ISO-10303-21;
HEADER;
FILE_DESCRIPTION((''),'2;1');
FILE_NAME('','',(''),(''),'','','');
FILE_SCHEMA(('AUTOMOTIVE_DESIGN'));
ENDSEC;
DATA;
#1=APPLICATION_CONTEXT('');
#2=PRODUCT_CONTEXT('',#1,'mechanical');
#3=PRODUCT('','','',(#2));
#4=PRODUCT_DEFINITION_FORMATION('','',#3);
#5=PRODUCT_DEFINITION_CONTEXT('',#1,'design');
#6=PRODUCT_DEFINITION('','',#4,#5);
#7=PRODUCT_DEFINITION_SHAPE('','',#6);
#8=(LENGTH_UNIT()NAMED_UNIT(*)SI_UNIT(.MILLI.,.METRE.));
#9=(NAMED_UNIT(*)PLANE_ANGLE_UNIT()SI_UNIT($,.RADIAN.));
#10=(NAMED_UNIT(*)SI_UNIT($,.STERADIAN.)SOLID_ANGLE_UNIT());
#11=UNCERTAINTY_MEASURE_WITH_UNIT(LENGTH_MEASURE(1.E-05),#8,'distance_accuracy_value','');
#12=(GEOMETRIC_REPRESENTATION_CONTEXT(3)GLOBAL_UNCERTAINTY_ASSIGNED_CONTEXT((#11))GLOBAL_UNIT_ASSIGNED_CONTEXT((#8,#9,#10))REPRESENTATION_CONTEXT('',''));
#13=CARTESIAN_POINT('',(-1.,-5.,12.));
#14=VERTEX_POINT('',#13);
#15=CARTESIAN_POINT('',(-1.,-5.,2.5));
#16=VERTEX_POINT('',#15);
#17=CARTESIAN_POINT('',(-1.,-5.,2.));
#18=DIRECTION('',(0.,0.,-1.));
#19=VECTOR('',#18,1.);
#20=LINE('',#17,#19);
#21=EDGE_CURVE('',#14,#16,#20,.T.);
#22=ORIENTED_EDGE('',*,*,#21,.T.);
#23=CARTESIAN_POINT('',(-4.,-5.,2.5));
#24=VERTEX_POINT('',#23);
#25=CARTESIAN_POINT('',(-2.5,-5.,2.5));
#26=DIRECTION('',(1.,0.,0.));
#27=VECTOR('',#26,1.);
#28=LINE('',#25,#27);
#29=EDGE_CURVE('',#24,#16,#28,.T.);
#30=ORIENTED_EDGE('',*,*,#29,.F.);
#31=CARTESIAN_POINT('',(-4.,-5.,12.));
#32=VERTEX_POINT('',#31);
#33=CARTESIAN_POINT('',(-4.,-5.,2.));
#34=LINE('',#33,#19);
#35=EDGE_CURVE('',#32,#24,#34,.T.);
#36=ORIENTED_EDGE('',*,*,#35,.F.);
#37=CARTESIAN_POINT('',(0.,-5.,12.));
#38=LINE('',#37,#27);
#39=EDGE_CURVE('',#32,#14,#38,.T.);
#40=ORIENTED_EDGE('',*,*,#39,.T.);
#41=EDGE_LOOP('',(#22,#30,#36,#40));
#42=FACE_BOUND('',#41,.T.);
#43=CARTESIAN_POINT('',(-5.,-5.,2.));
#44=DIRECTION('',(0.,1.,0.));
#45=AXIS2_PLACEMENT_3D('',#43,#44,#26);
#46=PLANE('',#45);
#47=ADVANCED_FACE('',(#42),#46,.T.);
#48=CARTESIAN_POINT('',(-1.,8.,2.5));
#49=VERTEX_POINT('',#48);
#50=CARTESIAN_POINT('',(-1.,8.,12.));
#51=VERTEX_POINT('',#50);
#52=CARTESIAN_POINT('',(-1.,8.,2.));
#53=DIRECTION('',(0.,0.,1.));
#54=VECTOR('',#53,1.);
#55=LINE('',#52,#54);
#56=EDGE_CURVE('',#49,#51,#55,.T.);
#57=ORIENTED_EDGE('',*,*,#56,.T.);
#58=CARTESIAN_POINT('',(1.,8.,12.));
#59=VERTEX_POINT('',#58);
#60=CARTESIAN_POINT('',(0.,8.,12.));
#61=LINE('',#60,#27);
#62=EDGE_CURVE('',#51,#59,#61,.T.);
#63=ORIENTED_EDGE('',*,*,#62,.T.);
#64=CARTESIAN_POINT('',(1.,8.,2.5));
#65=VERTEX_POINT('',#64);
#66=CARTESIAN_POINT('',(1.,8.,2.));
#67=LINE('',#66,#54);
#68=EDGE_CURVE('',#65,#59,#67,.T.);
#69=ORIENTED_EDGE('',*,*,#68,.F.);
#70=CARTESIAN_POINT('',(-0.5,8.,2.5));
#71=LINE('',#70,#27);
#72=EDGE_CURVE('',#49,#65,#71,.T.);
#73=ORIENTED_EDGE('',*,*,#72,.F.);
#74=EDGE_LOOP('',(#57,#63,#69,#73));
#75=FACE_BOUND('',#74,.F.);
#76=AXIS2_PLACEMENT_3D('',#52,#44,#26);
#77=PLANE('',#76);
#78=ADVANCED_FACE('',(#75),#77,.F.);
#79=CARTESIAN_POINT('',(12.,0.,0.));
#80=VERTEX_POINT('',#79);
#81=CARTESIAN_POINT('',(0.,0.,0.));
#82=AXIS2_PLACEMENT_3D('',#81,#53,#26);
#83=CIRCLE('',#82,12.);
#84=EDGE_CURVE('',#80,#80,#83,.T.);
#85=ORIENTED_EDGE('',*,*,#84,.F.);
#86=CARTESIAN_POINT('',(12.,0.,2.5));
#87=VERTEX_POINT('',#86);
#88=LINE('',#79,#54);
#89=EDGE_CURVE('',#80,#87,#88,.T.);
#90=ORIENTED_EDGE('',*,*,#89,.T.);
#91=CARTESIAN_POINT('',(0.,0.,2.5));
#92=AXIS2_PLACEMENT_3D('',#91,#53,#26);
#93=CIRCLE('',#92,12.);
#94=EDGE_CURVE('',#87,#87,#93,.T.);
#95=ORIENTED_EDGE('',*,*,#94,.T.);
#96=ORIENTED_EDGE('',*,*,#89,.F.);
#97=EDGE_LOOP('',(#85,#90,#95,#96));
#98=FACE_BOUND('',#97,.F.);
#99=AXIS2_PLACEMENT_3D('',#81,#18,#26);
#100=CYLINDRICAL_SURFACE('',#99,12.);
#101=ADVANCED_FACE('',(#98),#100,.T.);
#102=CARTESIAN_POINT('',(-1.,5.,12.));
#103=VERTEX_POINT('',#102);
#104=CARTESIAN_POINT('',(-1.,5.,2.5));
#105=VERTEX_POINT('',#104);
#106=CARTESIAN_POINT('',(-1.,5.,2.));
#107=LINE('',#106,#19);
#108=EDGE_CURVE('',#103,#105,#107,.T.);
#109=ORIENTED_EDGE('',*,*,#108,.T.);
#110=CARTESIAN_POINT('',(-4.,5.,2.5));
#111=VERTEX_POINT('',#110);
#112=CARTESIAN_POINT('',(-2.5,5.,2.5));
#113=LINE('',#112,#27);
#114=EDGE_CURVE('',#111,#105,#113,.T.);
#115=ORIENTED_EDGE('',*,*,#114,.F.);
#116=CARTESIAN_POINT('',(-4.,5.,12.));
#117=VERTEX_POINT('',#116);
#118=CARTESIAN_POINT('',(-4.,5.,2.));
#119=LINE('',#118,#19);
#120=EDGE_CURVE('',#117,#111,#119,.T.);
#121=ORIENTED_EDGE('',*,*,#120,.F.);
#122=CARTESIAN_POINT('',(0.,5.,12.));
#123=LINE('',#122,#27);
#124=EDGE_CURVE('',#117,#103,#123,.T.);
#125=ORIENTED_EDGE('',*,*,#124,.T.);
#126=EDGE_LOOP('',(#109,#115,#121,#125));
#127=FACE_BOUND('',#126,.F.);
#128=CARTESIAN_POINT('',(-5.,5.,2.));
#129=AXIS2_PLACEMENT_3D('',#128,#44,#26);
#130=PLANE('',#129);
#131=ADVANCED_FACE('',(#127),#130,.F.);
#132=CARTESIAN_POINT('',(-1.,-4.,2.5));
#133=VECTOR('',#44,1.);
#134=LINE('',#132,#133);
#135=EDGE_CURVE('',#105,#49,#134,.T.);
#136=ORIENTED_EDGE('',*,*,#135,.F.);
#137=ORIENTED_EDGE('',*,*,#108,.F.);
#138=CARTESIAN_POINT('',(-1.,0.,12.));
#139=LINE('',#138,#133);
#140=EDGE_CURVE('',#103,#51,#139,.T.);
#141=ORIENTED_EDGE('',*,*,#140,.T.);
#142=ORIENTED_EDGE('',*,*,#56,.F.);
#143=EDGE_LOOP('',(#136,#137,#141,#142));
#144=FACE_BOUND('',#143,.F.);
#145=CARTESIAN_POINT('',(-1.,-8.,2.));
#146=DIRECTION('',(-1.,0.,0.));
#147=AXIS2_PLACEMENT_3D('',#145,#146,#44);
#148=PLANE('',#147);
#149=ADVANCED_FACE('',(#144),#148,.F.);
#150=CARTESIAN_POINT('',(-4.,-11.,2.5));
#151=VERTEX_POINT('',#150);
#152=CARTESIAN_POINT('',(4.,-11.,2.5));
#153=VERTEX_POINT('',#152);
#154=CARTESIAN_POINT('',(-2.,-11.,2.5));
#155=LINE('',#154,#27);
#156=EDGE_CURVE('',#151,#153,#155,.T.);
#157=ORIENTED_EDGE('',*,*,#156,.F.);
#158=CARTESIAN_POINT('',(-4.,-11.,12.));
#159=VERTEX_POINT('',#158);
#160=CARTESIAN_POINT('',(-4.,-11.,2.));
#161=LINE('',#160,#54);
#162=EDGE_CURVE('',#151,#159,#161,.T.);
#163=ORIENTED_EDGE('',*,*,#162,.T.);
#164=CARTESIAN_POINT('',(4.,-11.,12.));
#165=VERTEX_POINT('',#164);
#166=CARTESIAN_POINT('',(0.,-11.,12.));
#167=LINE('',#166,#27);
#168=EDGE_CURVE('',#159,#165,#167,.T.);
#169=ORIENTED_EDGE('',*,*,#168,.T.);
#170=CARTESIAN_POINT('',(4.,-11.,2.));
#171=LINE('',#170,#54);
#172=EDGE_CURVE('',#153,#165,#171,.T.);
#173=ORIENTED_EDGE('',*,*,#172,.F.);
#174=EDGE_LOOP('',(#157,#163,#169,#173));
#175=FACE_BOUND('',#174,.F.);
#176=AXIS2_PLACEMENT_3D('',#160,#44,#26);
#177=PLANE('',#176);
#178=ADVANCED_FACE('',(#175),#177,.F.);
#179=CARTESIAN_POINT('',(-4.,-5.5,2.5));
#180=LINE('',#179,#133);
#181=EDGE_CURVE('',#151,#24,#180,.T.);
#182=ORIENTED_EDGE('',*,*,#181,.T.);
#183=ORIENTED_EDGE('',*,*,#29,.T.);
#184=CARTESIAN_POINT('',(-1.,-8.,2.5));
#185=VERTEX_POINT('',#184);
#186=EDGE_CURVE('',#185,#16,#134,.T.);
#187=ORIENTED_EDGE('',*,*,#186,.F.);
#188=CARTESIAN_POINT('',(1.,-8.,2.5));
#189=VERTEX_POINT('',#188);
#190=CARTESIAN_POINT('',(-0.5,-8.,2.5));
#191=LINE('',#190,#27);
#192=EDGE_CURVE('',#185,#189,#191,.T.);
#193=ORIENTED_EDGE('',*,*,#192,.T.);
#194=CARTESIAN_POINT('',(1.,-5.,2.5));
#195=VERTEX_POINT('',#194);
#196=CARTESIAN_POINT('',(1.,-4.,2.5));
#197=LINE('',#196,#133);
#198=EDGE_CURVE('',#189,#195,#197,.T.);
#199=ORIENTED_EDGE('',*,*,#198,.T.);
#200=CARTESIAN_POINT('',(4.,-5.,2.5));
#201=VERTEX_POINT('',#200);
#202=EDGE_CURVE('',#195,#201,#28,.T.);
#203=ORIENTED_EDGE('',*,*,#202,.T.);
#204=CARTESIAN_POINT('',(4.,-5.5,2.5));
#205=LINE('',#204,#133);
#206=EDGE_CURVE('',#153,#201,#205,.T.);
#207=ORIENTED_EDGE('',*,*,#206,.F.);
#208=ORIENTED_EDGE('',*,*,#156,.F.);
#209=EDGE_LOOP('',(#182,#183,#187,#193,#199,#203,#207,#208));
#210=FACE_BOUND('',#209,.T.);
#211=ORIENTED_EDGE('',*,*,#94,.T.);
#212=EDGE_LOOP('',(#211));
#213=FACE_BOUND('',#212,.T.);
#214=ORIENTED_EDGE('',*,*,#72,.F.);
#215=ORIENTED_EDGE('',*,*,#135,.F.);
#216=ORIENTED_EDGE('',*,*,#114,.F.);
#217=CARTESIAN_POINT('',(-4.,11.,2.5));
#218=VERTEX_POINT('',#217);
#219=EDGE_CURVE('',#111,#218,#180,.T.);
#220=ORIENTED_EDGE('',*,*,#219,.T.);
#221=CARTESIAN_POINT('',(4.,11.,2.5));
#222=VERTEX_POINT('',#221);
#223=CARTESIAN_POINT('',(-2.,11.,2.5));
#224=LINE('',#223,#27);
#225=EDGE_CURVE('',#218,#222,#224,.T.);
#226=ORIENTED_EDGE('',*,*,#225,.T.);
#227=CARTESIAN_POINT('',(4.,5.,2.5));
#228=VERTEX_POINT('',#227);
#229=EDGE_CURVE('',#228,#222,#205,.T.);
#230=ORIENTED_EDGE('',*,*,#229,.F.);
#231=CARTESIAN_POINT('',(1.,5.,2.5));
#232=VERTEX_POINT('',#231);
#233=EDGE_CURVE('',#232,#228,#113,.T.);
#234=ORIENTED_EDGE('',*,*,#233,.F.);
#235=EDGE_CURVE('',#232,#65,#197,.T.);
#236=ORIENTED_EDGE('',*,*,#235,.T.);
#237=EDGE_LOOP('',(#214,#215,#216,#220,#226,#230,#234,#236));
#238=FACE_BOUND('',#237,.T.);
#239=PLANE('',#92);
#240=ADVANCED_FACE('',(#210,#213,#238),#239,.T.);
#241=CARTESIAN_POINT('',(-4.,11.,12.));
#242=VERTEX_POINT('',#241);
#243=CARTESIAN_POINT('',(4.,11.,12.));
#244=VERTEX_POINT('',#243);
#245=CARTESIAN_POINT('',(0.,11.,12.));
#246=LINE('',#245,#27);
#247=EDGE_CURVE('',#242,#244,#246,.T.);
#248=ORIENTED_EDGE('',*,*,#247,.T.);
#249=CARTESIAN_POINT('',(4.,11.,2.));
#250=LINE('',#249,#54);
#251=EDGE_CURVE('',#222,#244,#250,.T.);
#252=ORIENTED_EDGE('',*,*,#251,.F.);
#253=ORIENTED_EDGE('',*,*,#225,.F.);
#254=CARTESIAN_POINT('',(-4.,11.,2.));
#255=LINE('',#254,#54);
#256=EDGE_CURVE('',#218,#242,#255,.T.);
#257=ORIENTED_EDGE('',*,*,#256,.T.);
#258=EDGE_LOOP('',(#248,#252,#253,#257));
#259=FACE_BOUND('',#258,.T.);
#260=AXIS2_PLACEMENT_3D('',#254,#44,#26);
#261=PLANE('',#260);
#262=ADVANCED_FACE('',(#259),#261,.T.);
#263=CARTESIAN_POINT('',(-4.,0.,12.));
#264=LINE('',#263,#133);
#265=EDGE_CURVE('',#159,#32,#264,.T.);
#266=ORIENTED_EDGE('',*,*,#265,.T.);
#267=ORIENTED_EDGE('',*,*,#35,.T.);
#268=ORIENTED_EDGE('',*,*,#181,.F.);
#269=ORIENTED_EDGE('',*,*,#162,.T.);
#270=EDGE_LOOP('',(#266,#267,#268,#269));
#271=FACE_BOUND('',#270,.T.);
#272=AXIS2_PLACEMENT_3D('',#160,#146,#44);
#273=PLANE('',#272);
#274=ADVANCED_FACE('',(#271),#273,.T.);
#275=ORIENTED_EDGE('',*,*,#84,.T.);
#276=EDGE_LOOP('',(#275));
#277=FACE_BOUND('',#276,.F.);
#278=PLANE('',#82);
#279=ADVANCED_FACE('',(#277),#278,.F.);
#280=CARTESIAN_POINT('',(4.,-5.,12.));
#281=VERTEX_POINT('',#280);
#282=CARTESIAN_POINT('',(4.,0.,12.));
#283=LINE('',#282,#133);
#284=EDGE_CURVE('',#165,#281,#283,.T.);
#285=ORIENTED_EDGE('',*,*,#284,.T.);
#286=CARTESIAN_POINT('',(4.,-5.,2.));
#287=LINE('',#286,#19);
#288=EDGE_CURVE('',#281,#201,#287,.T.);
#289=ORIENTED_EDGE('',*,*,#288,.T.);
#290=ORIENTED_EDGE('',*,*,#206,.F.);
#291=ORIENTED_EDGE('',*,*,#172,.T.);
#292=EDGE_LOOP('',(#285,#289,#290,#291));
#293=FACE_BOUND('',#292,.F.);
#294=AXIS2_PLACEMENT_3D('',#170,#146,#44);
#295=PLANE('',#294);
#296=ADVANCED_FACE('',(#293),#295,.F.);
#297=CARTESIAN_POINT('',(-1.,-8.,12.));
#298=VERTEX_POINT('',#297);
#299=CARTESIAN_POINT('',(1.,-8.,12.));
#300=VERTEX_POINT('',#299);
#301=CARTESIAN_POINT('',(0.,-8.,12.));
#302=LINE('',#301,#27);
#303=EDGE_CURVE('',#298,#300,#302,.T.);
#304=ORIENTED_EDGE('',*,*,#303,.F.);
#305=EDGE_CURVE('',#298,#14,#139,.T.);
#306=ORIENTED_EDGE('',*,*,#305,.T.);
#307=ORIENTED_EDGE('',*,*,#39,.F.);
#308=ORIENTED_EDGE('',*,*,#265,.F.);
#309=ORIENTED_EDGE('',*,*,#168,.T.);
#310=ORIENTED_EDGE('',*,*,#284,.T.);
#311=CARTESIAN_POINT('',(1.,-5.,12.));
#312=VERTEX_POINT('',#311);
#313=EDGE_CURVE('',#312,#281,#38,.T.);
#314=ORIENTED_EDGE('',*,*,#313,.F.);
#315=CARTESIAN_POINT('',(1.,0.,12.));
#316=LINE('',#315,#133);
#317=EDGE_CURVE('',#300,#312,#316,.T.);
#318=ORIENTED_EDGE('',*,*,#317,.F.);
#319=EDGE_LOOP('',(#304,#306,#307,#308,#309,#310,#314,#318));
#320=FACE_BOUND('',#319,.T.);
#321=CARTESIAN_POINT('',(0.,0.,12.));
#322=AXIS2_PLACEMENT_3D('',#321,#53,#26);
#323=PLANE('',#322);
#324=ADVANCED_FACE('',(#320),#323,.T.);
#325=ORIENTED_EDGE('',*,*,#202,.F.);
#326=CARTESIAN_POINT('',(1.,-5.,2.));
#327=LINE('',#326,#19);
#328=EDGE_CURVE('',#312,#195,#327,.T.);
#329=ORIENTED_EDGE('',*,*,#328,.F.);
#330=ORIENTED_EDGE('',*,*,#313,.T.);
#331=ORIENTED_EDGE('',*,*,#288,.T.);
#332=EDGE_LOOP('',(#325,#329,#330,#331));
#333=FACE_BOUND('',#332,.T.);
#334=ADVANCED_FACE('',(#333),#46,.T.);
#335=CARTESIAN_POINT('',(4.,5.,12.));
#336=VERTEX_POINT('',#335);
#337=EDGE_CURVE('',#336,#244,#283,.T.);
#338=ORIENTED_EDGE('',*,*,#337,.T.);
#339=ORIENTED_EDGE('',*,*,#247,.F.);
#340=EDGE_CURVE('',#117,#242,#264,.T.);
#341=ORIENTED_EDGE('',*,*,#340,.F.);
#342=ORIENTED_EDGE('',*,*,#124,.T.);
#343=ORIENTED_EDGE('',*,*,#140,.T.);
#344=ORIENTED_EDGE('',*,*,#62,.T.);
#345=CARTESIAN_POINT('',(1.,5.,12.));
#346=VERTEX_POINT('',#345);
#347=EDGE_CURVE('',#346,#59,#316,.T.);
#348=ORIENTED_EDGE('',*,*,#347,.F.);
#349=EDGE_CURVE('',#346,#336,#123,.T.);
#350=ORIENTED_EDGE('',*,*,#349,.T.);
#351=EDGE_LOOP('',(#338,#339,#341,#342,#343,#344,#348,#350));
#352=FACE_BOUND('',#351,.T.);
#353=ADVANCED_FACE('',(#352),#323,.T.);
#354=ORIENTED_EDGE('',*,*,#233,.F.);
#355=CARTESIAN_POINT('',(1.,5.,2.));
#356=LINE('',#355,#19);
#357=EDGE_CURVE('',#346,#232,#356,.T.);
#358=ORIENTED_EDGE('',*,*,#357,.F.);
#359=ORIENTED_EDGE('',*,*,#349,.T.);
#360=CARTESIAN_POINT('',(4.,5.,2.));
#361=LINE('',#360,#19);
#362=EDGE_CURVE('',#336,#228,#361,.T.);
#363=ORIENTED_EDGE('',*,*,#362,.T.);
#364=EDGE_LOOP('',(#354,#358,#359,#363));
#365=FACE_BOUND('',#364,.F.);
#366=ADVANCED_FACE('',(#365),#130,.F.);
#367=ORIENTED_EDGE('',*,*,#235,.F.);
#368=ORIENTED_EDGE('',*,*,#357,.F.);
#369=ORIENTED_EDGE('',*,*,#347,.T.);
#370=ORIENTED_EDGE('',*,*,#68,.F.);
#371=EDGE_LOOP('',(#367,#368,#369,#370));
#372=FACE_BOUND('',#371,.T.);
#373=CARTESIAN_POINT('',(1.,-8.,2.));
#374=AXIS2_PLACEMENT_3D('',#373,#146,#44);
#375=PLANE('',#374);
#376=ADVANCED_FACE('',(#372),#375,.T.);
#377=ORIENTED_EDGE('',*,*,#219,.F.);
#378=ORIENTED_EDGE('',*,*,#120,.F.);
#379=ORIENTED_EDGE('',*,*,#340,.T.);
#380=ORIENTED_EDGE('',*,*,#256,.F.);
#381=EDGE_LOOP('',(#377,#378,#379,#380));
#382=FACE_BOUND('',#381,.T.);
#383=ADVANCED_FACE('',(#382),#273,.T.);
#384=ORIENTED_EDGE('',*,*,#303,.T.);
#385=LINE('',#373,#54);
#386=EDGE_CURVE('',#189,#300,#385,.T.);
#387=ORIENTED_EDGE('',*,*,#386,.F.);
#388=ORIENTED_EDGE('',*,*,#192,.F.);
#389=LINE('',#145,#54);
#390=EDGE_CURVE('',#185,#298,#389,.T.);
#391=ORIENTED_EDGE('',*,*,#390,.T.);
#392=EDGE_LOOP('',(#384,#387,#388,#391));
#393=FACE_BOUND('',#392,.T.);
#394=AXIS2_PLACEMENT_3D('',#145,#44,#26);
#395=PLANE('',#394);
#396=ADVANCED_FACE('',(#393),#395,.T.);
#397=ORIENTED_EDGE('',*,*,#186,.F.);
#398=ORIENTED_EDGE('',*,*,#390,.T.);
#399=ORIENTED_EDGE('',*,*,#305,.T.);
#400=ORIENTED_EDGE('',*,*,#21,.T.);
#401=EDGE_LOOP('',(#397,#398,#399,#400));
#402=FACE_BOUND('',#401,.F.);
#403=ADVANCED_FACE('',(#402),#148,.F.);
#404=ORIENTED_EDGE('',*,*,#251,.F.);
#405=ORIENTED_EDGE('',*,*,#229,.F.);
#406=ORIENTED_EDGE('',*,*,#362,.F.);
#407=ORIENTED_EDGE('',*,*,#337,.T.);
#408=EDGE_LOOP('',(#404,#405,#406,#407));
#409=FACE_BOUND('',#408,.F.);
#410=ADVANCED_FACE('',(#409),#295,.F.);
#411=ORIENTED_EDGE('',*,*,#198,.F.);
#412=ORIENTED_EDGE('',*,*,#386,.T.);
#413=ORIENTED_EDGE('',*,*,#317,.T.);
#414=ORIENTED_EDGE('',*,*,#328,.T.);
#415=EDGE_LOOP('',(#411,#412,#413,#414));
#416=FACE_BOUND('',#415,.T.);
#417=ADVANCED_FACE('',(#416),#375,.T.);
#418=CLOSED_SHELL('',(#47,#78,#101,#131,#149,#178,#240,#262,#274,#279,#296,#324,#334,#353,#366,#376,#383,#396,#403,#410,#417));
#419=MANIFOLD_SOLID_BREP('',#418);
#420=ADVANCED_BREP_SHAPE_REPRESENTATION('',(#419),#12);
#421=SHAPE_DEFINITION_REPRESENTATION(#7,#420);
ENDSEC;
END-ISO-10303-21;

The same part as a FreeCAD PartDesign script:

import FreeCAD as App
import Part
import Sketcher
from FreeCAD import Vector


def add_polygon(sketch, points):
    """Adds a closed chain of lines whose ends are joined by coincident constraints."""
    first, n = sketch.GeometryCount, len(points)
    for a, b in zip(points, points[1:] + points[:1]):
        sketch.addGeometry(Part.LineSegment(App.Vector(*a, 0), App.Vector(*b, 0)), False)
    for i in range(n):
        sketch.addConstraint(Sketcher.Constraint("Coincident", first + i, 2, first + (i + 1) % n, 1))

doc = App.newDocument("Part")
body = doc.addObject("PartDesign::Body", "Body")

# Sketch on XY plane
sketch1 = doc.addObject("Sketcher::SketchObject", "Sketch")
body.addObject(sketch1)
sketch1.AttachmentSupport = (doc.XY_Plane, [""])
sketch1.MapMode = "FlatFace"
sketch1.addGeometry(Part.Circle(Vector(0, 0, 0), Vector(0, 0, 1), 12), False)
sketch1.addConstraint([
    Sketcher.Constraint("Coincident", 0, 3, -1, 1),
    Sketcher.Constraint("Diameter", 0, 24.0),
])
pad1 = doc.addObject("PartDesign::Pad", "Pad")
body.addObject(pad1)
pad1.Profile = sketch1
pad1.Length = 2.5
body2 = doc.addObject("PartDesign::Body", "Body001")

# Sketch on XY plane
sketch2 = doc.addObject("Sketcher::SketchObject", "Sketch001")
body2.addObject(sketch2)
sketch2.AttachmentSupport = (doc.getObject("XY_Plane001"), [""])
sketch2.MapMode = "FlatFace"
sketch2.AttachmentOffset = App.Placement(Vector(0, 0, 2), App.Rotation())
add_polygon(sketch2, [(-5, 5), (-5, -5), (5, -5), (5, 5)])  # lines 0-3
sketch2.addConstraint([
    Sketcher.Constraint("Vertical", 0),
    Sketcher.Constraint("Horizontal", 1),
    Sketcher.Constraint("Vertical", 2),
    Sketcher.Constraint("Horizontal", 3),
    Sketcher.Constraint("Symmetric", 0, 2, 2, 2, -1, 1),
    Sketcher.Constraint("Equal", 3, 0),
    Sketcher.Constraint("DistanceX", 1, 1, 1, 2, 10.0),
])
pad2 = doc.addObject("PartDesign::Pad", "Pad001")
body2.addObject(pad2)
pad2.Profile = sketch2
pad2.Length = 10
body3 = doc.addObject("PartDesign::Body", "Body002")

# Sketch on XY plane
sketch3 = doc.addObject("Sketcher::SketchObject", "Sketch002")
body3.addObject(sketch3)
sketch3.AttachmentSupport = (doc.getObject("XY_Plane002"), [""])
sketch3.MapMode = "FlatFace"
sketch3.AttachmentOffset = App.Placement(Vector(0, 0, 2), App.Rotation())
add_polygon(sketch3, [(-1, 8), (-1, -8), (1, -8), (1, 8)])  # lines 0-3
sketch3.addConstraint([
    Sketcher.Constraint("Vertical", 0),
    Sketcher.Constraint("Horizontal", 1),
    Sketcher.Constraint("Vertical", 2),
    Sketcher.Constraint("Horizontal", 3),
    Sketcher.Constraint("Symmetric", 0, 2, 2, 2, -1, 1),
    Sketcher.Constraint("DistanceX", 1, 1, 1, 2, 2.0),
    Sketcher.Constraint("DistanceY", 0, 2, 0, 1, 16.0),
])
pad3 = doc.addObject("PartDesign::Pad", "Pad002")
body3.addObject(pad3)
pad3.Profile = sketch3
pad3.Length = 10
doc.recompute()

boolean = doc.addObject("PartDesign::Boolean", "Boolean")
body3.addObject(boolean)
boolean.Type = "Fuse"
boolean.addObjects([body2])
body4 = doc.addObject("PartDesign::Body", "Body003")
body4.AllowCompound = True

# Sketch on XY plane
sketch4 = doc.addObject("Sketcher::SketchObject", "Sketch003")
body4.addObject(sketch4)
sketch4.AttachmentSupport = (doc.getObject("XY_Plane003"), [""])
sketch4.MapMode = "FlatFace"
sketch4.AttachmentOffset = App.Placement(Vector(0, 0, 2), App.Rotation())
add_polygon(sketch4, [(-4, 11), (-4, -11), (4, -11), (4, 11)])  # lines 0-3
sketch4.addConstraint([
    Sketcher.Constraint("Vertical", 0),
    Sketcher.Constraint("Horizontal", 1),
    Sketcher.Constraint("Vertical", 2),
    Sketcher.Constraint("Horizontal", 3),
    Sketcher.Constraint("Symmetric", 0, 2, 2, 2, -1, 1),
    Sketcher.Constraint("DistanceX", 1, 1, 1, 2, 8.0),
    Sketcher.Constraint("DistanceY", 0, 2, 0, 1, 22.0),
])
pad4 = doc.addObject("PartDesign::Pad", "Pad003")
body4.addObject(pad4)
pad4.Profile = sketch4
pad4.Length = 10
doc.recompute()

boolean2 = doc.addObject("PartDesign::Boolean", "Boolean001")
body4.addObject(boolean2)
boolean2.Type = "Cut"
boolean2.addObjects([body3])
doc.recompute()

boolean3 = doc.addObject("PartDesign::Boolean", "Boolean002")
body4.addObject(boolean3)
boolean3.Type = "Fuse"
boolean3.addObjects([body])

doc.recompute()
